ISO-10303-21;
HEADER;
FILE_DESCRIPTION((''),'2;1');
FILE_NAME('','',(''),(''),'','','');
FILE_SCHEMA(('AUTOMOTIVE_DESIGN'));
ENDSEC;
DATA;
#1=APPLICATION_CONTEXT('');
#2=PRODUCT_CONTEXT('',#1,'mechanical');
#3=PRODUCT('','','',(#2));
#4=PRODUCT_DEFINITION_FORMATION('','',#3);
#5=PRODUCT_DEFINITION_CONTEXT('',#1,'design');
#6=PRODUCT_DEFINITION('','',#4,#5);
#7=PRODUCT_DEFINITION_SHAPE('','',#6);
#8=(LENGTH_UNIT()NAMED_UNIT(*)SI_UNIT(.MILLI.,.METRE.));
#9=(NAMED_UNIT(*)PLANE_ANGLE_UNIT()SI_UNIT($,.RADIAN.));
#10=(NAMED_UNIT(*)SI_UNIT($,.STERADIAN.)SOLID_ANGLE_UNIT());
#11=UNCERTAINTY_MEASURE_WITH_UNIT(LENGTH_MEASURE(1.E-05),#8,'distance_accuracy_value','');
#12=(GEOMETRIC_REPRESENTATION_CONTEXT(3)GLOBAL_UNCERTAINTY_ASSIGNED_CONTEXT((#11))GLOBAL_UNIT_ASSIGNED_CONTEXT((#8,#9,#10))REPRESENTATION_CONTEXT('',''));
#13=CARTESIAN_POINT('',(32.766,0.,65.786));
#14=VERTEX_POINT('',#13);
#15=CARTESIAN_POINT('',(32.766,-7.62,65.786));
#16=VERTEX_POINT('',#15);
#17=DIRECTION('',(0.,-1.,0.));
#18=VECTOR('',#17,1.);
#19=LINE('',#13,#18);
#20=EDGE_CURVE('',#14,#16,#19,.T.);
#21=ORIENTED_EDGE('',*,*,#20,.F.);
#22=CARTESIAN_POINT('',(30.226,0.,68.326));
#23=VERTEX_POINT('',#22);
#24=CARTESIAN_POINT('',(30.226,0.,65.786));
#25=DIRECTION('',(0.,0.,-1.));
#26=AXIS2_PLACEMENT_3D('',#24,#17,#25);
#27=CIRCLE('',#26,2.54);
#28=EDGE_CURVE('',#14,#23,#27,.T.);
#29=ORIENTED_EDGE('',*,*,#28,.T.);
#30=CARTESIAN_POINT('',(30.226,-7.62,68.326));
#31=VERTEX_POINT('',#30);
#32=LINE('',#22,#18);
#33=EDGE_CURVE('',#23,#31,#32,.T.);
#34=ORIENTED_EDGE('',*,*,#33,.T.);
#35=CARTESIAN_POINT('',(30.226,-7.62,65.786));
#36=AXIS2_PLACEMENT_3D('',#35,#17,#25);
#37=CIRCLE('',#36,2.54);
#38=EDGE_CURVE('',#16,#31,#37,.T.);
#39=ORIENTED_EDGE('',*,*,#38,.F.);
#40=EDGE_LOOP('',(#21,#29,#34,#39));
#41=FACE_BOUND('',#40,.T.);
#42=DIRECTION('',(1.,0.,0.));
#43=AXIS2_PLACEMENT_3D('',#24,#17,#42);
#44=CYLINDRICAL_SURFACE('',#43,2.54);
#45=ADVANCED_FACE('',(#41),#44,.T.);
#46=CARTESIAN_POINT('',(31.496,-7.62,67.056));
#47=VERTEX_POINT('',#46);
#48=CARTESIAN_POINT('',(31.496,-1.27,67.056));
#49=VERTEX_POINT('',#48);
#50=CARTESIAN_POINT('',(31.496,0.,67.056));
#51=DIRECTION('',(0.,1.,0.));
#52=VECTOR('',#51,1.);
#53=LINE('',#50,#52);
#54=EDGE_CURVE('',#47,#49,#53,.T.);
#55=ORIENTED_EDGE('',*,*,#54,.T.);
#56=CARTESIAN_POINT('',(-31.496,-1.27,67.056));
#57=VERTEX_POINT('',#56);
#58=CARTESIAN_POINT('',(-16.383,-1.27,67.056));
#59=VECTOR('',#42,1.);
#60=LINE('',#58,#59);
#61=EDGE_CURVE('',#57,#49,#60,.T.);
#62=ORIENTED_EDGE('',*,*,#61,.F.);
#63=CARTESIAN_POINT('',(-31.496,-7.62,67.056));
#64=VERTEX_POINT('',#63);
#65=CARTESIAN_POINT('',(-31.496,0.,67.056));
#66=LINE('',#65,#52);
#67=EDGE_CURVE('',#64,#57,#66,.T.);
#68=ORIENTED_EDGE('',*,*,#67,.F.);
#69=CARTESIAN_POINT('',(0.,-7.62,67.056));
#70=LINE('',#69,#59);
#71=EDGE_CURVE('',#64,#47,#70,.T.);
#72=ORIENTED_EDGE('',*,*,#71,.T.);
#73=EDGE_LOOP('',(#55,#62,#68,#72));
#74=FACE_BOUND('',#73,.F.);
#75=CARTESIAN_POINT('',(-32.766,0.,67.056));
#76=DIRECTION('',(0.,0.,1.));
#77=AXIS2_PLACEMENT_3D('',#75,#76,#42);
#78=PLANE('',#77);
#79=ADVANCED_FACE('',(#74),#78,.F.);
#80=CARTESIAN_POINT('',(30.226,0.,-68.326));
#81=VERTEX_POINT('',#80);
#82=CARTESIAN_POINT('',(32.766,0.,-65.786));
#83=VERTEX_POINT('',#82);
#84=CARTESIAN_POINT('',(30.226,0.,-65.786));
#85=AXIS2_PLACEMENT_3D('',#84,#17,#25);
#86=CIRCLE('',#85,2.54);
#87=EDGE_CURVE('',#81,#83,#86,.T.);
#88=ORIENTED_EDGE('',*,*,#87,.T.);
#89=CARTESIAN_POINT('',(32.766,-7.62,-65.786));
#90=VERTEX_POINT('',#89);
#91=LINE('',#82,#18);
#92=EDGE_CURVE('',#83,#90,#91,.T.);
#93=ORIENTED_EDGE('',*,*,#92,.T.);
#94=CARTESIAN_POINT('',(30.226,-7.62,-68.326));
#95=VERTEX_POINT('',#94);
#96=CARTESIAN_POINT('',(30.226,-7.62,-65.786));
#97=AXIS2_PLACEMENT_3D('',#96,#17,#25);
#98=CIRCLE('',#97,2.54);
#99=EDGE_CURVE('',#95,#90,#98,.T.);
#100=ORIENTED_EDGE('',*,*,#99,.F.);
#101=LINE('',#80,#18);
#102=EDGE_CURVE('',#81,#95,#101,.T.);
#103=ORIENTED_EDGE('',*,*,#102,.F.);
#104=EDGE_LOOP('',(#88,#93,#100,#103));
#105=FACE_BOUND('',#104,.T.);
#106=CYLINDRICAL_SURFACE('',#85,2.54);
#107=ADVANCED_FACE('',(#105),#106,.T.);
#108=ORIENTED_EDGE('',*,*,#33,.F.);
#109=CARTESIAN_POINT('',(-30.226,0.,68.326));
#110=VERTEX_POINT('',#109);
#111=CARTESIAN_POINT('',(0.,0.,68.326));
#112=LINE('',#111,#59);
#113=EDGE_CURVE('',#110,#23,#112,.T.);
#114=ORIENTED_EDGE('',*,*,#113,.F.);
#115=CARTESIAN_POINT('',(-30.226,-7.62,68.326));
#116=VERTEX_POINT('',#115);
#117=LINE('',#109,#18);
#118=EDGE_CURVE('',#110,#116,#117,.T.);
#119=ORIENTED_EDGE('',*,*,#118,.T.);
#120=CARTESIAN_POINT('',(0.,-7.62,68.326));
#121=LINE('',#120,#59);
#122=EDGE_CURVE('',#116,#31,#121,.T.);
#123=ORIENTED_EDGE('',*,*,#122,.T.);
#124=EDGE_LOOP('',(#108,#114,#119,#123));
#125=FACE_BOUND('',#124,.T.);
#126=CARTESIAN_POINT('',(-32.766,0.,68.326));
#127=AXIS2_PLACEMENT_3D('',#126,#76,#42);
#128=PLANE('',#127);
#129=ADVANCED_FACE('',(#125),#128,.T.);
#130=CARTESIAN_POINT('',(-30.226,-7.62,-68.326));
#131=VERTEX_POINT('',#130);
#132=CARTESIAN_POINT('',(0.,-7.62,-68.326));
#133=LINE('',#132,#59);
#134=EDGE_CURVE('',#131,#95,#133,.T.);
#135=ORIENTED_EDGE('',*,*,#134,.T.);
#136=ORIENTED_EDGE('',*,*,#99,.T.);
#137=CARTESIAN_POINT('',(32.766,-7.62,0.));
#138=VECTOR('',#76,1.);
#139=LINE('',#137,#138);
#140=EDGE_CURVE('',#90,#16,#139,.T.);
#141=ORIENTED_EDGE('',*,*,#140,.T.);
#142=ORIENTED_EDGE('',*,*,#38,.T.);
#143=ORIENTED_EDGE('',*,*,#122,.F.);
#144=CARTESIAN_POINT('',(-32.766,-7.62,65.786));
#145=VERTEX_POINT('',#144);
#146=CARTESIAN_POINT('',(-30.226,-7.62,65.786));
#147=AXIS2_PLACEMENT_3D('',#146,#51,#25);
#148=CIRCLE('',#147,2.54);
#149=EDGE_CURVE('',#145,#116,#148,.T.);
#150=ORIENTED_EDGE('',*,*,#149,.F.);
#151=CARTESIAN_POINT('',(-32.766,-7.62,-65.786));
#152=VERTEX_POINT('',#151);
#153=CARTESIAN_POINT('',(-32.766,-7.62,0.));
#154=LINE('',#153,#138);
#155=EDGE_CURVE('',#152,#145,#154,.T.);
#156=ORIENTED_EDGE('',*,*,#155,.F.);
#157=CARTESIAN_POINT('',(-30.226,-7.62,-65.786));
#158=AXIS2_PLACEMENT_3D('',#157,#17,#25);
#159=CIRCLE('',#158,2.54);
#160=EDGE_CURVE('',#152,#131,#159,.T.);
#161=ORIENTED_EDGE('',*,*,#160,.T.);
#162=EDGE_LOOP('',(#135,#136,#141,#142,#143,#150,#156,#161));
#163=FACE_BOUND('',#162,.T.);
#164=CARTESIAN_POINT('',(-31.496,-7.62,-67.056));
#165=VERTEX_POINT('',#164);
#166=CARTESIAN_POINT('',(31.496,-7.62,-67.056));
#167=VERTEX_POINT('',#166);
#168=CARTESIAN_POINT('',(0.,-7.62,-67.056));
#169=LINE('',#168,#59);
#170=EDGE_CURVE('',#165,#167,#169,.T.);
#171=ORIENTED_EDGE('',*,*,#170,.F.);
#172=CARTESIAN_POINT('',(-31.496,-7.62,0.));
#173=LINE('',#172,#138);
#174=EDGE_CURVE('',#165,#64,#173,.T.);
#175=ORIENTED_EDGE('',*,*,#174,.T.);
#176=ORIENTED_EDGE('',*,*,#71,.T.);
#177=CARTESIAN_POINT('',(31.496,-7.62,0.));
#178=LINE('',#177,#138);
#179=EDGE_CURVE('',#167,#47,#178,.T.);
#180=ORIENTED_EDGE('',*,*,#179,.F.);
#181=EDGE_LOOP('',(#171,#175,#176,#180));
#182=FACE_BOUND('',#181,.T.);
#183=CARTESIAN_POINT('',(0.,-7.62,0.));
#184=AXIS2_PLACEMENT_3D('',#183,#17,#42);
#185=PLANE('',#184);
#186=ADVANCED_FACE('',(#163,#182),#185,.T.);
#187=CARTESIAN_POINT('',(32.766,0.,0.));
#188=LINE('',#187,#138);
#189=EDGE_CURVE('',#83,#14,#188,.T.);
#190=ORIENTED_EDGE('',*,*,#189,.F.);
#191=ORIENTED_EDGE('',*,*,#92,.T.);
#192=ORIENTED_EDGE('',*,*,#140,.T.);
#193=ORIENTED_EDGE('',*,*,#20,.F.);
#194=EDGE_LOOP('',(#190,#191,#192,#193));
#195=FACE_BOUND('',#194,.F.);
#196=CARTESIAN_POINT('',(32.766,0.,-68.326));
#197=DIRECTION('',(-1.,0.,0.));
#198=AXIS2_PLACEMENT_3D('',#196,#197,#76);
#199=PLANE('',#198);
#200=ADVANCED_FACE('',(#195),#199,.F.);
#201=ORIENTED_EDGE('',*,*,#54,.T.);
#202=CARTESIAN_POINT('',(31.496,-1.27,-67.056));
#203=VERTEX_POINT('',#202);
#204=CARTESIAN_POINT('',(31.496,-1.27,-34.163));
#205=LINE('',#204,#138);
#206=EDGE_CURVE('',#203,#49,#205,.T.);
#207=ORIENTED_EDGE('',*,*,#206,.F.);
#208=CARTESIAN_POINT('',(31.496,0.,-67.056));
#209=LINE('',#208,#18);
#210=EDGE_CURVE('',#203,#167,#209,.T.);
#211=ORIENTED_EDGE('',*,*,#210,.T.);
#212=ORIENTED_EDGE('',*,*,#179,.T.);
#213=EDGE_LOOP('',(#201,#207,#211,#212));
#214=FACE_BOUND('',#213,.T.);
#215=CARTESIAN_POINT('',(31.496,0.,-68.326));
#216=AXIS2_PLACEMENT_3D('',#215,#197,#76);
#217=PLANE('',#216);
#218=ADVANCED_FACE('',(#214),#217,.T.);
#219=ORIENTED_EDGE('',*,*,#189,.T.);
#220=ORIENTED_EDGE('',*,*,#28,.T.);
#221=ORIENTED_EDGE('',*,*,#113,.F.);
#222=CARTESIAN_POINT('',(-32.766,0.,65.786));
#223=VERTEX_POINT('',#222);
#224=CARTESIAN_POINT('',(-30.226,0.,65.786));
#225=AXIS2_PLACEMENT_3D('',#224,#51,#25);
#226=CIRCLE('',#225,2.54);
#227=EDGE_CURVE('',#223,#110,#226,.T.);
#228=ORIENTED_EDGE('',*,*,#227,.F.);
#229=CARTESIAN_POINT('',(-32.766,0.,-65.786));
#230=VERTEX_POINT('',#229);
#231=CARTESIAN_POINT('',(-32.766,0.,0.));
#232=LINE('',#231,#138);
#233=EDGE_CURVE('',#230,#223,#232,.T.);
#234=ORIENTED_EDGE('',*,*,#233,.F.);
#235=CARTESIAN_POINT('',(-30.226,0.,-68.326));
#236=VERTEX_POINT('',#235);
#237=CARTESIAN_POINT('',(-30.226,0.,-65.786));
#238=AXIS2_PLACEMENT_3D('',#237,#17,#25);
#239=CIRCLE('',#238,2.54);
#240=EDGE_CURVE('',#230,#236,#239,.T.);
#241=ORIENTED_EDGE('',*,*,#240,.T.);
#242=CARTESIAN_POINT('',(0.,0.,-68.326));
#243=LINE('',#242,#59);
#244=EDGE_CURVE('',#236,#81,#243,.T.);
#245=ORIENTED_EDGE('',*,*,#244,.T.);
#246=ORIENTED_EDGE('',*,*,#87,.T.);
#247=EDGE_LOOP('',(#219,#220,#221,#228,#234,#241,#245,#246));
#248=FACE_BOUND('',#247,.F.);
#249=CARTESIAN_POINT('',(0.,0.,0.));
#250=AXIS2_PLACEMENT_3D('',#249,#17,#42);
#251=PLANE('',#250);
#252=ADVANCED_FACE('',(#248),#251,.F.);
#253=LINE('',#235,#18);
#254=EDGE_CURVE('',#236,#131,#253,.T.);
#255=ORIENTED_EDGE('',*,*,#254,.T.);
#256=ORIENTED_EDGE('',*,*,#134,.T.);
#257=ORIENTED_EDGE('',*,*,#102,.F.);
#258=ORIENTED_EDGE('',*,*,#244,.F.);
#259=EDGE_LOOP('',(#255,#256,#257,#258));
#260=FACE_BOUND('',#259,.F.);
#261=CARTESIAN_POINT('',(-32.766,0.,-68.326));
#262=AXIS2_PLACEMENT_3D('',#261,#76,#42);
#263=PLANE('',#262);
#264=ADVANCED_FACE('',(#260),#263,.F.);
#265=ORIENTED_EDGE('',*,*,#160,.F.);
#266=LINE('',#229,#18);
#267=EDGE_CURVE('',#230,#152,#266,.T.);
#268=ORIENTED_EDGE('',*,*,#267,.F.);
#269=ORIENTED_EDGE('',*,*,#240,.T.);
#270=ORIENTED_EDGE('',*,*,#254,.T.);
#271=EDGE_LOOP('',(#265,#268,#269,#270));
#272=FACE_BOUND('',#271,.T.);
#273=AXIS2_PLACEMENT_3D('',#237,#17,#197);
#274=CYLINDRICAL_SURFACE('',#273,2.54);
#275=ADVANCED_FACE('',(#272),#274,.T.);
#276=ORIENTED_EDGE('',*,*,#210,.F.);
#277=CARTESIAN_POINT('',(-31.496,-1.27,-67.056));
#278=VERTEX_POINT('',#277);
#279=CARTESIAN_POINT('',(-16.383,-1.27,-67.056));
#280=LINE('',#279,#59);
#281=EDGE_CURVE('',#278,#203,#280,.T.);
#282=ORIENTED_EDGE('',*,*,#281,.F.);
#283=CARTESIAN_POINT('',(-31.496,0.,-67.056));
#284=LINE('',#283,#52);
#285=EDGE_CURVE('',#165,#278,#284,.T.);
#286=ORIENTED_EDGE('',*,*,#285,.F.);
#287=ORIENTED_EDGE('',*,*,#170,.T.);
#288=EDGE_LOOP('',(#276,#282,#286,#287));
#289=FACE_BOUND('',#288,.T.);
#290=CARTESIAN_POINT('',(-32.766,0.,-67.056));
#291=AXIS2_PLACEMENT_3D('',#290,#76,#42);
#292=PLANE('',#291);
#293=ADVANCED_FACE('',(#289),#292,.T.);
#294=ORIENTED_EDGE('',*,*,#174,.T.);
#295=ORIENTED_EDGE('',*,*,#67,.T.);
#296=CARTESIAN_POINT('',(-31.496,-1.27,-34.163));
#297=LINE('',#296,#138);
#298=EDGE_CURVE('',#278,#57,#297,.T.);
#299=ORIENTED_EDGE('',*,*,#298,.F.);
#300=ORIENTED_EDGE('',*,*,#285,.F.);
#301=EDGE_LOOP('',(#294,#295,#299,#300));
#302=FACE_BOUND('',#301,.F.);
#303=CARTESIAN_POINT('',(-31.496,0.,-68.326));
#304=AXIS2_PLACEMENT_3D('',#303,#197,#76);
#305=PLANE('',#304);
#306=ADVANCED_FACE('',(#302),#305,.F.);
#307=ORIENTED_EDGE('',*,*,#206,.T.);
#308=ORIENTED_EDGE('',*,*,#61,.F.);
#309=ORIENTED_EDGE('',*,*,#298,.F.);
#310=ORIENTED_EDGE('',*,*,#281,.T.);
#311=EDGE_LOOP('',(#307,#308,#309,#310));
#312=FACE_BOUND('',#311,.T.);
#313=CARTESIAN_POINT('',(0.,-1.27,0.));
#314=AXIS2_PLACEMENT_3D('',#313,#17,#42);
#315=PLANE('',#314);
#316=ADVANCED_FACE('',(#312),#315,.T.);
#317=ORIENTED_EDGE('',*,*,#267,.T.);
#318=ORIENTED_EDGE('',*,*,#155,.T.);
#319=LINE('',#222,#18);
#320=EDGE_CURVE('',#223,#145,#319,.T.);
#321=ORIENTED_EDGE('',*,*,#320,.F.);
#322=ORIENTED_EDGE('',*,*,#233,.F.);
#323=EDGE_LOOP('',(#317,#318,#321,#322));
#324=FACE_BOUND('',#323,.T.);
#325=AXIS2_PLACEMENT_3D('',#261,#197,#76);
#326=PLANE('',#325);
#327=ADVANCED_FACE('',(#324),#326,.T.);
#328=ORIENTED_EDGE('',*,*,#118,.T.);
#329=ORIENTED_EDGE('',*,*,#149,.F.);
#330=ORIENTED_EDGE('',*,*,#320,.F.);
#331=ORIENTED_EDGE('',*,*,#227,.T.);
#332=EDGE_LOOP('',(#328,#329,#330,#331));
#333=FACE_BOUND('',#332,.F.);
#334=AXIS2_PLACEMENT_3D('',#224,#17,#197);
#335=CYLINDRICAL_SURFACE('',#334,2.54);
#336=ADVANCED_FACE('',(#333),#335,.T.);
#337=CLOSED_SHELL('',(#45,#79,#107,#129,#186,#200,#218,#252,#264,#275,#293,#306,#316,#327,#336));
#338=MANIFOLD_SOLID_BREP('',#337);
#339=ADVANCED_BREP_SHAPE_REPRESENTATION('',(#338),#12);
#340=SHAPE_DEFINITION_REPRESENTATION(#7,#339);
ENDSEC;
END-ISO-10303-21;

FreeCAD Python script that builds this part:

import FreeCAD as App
import Part
import Sketcher
from FreeCAD import Vector
Q = App.Units.Quantity


def edges_at(feature, points):
    """Names of the edges that pass closest to the given points."""
    edges = feature.Shape.Edges
    near = lambda p: min(range(len(edges)), key=lambda i: edges[i].distToShape(Part.Vertex(*p))[0])
    return sorted({f"Edge{near(p) + 1}" for p in points})


def faces_at(feature, points):
    """Names of the faces that lie closest to the given points."""
    faces = feature.Shape.Faces
    near = lambda p: min(range(len(faces)), key=lambda i: faces[i].distToShape(Part.Vertex(*p))[0])
    return sorted({f"Face{near(p) + 1}" for p in points})


def add_polygon(sketch, points):
    """Adds a closed chain of lines whose ends are joined by coincident constraints."""
    first, n = sketch.GeometryCount, len(points)
    for a, b in zip(points, points[1:] + points[:1]):
        sketch.addGeometry(Part.LineSegment(App.Vector(*a, 0), App.Vector(*b, 0)), False)
    for i in range(n):
        sketch.addConstraint(Sketcher.Constraint("Coincident", first + i, 2, first + (i + 1) % n, 1))

doc = App.newDocument("Part")
body = doc.addObject("PartDesign::Body", "Body")

# Sketch on XZ plane
sketch1 = body.newObject("Sketcher::SketchObject", "Sketch")
sketch1.AttachmentSupport = (doc.getObject("XZ_Plane"), [""])
sketch1.MapMode = "FlatFace"
add_polygon(sketch1, [(-33, 68), (-33, -68), (33, -68), (33, 68)])  # lines 0-3
sketch1.addConstraint([
    Sketcher.Constraint("Vertical", 0),
    Sketcher.Constraint("Horizontal", 1),
    Sketcher.Constraint("Vertical", 2),
    Sketcher.Constraint("Horizontal", 3),
    Sketcher.Constraint("Symmetric", 0, 2, 2, 2, -1, 1),
    Sketcher.Constraint("DistanceX", 1, 1, 1, 2, Q("2.58 in")),
    Sketcher.Constraint("DistanceY", 0, 2, 0, 1, Q("5.38 in")),
])
pad1 = body.newObject("PartDesign::Pad", "Pad")
pad1.Profile = sketch1
pad1.Length = Q("0.3 in")
doc.recompute()

thickness = body.newObject("PartDesign::Thickness", "Thickness")
thickness.Base = (pad1, faces_at(pad1, [(0, -7.62, 0)]))
thickness.Value = Q("0.05 in")
thickness.Reversed = True
thickness.Join = "Arc"
doc.recompute()

fillet = body.newObject("PartDesign::Fillet", "Fillet")
fillet.Base = (thickness, edges_at(thickness, [
    (-32.766, -3.81, -68.326),
    (32.766, -3.81, -68.326),
    (32.766, -3.81, 68.326),
    (-32.766, -3.81, 68.326),
]))
fillet.Radius = Q("0.1 in")

doc.recompute()
